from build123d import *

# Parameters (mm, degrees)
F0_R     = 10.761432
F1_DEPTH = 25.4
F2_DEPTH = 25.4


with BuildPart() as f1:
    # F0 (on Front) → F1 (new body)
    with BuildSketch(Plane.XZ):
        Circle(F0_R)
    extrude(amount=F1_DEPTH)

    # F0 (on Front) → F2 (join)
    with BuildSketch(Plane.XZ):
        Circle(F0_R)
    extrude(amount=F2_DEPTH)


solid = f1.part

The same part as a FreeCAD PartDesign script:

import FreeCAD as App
import Part
import Sketcher
Q = App.Units.Quantity

doc = App.newDocument("Part")
body = doc.addObject("PartDesign::Body", "Body")

# Sketch on XZ plane
sketch1 = body.newObject("Sketcher::SketchObject", "Sketch")
sketch1.AttachmentSupport = (doc.getObject("XZ_Plane"), [""])
sketch1.MapMode = "FlatFace"
sketch1.addGeometry(Part.Circle(App.Vector(0, 0, 0), App.Vector(0, 0, 1), 11), False)
sketch1.addConstraint(Sketcher.Constraint("Coincident", 0, 3, -1, 1))
sketch1.addConstraint(Sketcher.Constraint("Diameter", 0, Q("21.522864 mm")))
pad1 = body.newObject("PartDesign::Pad", "Pad")
pad1.Profile = sketch1
pad1.Length = Q("1 in")

# Sketch on XZ plane
sketch2 = body.newObject("Sketcher::SketchObject", "Sketch001")
sketch2.AttachmentSupport = (doc.getObject("XZ_Plane"), [""])
sketch2.MapMode = "FlatFace"
sketch2.addGeometry(Part.Circle(App.Vector(0, 0, 0), App.Vector(0, 0, 1), 11), False)
sketch2.addConstraint(Sketcher.Constraint("Coincident", 0, 3, -1, 1))
sketch2.addConstraint(Sketcher.Constraint("Diameter", 0, Q("21.522864 mm")))
pad2 = body.newObject("PartDesign::Pad", "Pad001")
pad2.Profile = sketch2
pad2.Length = Q("1 in")

doc.recompute()
